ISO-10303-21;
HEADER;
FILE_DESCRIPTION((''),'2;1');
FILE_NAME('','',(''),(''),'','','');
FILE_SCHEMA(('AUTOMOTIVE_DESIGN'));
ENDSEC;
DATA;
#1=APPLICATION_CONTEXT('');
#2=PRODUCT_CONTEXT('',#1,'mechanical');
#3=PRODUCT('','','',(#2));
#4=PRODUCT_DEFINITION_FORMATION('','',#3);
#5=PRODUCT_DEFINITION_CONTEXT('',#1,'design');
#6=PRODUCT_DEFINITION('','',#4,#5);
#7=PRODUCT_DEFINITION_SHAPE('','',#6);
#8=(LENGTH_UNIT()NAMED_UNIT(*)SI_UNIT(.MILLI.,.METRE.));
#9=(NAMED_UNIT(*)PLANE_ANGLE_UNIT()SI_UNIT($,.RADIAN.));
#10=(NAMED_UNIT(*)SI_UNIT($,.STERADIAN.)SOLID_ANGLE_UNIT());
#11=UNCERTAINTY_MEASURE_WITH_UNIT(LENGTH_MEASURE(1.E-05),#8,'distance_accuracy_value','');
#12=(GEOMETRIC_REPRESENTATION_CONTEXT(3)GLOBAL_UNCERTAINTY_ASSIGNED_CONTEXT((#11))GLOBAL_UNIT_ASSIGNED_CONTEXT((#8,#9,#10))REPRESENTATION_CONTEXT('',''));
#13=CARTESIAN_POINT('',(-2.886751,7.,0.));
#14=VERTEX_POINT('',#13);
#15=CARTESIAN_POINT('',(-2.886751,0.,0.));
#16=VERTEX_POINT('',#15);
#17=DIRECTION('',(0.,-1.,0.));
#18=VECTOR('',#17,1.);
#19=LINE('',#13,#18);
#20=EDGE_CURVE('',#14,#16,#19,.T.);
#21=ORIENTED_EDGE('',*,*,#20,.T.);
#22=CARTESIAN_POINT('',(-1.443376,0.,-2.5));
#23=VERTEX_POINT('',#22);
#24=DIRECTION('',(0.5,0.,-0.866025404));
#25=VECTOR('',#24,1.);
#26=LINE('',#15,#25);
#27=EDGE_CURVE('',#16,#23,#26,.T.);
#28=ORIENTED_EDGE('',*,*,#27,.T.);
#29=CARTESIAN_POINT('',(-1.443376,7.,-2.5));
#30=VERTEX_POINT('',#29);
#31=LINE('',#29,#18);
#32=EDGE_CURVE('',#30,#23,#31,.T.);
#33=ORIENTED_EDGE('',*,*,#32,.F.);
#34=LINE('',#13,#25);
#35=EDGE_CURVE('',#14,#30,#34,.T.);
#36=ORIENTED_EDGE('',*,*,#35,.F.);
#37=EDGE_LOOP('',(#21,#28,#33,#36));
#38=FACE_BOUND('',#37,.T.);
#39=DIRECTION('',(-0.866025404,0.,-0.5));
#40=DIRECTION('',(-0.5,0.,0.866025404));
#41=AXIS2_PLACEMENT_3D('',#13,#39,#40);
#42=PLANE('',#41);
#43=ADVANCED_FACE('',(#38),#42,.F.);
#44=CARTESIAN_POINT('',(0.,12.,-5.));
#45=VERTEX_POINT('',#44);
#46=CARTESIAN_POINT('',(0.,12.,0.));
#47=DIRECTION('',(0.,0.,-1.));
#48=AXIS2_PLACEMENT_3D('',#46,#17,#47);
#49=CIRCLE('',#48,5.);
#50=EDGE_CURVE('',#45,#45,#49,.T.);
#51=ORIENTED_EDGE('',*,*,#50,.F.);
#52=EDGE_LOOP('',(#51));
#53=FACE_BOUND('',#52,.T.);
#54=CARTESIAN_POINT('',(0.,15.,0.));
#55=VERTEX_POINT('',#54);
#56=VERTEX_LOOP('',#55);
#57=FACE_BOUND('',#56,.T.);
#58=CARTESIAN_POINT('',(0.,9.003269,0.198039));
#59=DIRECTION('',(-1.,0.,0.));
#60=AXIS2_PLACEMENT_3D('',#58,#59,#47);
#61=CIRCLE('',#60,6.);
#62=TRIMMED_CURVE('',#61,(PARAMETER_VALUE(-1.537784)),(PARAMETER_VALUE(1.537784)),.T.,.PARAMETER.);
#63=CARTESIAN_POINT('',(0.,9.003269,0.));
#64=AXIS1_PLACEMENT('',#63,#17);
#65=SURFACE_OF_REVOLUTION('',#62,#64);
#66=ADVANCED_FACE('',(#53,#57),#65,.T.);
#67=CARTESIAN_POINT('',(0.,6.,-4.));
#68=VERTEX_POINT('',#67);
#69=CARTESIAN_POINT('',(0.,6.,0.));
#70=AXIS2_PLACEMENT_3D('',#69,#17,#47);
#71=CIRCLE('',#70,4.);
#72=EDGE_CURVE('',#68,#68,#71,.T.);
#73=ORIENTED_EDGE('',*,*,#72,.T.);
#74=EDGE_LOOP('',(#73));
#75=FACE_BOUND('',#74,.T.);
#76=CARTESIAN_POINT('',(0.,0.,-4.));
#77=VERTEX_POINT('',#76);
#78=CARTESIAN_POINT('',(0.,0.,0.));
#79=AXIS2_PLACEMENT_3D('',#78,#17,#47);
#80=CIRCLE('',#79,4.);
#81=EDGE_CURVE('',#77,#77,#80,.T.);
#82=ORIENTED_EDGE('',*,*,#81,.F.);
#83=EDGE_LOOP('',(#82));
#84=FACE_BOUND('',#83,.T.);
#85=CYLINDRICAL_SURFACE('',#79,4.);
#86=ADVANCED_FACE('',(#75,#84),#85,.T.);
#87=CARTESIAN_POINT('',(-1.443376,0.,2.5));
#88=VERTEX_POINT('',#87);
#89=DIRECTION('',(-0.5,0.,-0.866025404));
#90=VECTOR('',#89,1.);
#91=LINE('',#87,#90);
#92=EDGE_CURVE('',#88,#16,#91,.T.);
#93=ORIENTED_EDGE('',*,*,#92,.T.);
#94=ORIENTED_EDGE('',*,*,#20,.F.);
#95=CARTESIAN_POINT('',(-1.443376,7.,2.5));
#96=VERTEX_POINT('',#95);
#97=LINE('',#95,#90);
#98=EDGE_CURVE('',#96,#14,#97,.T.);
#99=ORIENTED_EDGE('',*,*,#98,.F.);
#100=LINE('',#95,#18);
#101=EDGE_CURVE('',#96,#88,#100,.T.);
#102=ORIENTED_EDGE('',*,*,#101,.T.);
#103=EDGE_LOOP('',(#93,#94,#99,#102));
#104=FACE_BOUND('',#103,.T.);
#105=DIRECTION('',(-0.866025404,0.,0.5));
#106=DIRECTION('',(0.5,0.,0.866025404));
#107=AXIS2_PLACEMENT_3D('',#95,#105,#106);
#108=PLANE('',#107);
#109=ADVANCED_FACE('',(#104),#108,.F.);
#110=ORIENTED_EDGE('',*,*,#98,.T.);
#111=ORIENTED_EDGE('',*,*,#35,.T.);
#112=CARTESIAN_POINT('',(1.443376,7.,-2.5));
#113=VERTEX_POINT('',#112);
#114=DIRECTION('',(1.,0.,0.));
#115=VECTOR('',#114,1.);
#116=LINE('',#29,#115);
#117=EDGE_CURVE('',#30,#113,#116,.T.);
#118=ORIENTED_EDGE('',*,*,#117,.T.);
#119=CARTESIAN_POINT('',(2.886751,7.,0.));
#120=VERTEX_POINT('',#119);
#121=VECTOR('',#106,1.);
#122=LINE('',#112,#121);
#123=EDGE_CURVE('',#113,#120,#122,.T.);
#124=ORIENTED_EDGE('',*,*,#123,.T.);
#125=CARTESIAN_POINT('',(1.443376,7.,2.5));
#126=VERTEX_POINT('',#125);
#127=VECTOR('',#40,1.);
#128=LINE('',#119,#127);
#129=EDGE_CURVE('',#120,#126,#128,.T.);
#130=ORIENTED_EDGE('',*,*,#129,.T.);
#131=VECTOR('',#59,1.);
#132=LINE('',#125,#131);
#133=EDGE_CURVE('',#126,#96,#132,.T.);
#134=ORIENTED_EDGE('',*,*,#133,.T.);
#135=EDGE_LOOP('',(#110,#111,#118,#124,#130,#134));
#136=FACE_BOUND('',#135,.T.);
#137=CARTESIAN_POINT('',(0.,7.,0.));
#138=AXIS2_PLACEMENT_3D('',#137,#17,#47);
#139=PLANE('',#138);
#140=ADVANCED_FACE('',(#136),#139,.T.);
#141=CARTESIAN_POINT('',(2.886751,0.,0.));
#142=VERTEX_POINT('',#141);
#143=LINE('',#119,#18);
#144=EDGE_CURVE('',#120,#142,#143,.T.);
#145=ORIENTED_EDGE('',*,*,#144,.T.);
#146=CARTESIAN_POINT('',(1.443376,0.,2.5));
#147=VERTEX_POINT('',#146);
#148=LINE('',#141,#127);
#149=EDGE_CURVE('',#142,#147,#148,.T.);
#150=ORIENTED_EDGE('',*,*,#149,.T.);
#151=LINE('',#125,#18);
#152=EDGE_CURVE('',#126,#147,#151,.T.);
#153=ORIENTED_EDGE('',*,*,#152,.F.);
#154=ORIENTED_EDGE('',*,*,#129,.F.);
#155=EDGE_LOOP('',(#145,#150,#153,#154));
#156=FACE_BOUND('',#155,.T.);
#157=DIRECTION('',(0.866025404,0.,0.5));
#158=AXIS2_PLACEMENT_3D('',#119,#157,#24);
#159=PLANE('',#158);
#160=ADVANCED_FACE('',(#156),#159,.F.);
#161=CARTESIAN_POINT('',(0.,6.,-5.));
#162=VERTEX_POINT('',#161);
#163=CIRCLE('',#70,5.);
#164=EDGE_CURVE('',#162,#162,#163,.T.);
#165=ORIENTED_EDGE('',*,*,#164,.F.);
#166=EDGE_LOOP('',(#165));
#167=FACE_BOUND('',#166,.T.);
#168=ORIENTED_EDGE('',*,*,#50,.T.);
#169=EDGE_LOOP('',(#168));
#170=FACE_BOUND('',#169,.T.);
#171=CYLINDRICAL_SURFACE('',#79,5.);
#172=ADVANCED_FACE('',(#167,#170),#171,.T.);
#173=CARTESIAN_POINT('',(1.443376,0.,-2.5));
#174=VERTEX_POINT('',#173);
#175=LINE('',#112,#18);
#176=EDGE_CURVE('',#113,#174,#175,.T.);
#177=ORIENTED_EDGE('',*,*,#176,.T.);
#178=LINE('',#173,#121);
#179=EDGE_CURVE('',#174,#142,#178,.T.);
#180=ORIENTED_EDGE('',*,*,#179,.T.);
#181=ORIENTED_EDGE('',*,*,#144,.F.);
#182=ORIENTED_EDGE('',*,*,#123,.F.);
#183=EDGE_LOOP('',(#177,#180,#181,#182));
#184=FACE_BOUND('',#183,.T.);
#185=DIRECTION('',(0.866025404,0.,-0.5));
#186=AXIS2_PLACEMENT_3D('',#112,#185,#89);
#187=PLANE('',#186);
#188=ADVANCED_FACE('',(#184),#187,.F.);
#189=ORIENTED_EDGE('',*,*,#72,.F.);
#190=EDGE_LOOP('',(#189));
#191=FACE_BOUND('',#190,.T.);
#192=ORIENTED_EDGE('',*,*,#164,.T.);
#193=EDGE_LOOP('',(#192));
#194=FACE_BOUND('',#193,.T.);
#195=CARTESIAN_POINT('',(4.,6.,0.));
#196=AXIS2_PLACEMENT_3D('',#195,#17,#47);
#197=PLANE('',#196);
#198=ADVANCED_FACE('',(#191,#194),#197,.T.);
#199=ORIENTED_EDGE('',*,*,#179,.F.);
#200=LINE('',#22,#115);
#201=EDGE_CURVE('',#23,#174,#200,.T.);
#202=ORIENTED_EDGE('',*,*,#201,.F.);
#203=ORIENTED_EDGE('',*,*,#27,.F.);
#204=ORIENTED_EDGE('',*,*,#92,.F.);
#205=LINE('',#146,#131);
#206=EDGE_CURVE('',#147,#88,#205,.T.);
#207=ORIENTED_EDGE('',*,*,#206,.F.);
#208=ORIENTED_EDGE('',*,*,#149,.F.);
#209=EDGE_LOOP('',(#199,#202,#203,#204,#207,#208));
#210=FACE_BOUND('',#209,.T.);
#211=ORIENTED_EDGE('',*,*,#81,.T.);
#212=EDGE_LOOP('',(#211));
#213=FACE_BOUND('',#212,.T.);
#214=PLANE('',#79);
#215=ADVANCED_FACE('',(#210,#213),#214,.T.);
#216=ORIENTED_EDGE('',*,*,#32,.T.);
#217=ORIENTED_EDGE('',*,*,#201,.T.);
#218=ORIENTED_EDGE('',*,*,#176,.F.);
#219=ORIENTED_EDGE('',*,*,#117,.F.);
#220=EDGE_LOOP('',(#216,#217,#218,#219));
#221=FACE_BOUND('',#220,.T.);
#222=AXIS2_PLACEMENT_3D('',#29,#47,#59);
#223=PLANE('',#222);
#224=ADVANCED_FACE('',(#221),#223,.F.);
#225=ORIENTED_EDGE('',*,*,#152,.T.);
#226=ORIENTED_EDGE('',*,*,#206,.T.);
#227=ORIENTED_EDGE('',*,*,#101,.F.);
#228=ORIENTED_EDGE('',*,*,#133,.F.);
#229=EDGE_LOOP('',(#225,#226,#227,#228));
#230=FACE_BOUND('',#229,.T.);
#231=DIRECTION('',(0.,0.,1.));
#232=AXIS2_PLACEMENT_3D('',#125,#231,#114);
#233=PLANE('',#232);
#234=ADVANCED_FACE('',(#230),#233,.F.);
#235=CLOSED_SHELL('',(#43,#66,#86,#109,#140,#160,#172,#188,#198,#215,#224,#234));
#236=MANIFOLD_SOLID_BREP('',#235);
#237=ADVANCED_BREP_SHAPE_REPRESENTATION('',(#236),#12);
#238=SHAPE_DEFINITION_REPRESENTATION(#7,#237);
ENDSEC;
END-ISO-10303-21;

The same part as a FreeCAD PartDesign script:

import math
import FreeCAD as App
import Part
import Sketcher
from FreeCAD import Vector
Q = App.Units.Quantity

doc = App.newDocument("Part")
body = doc.addObject("PartDesign::Body", "Body")

# Sketch on XY plane
sketch1 = body.newObject("Sketcher::SketchObject", "Sketch")
sketch1.AttachmentSupport = (doc.getObject("XY_Plane"), [""])
sketch1.MapMode = "FlatFace"
sketch1.addGeometry(Part.LineSegment(Vector(0, 15, 0), Vector(0, 0, 0)), False)
sketch1.addGeometry(Part.LineSegment(Vector(0, 0, 0), Vector(4, 0, 0)), False)
sketch1.addGeometry(Part.LineSegment(Vector(4, 0, 0), Vector(4, 6, 0)), False)
sketch1.addGeometry(Part.LineSegment(Vector(4, 6, 0), Vector(5, 6, 0)), False)
sketch1.addGeometry(Part.LineSegment(Vector(5, 6, 0), Vector(5, 12, 0)), False)
sketch1.addGeometry(Part.ArcOfCircle(Part.Circle(Vector(-0.2, 9, 0), Vector(0, 0, 1), 6), math.radians(30), math.radians(88)), False)
sketch1.addConstraint(Sketcher.Constraint("Coincident", 0, 2, 1, 1))
sketch1.addConstraint(Sketcher.Constraint("Coincident", 1, 2, 2, 1))
sketch1.addConstraint(Sketcher.Constraint("Coincident", 2, 2, 3, 1))
sketch1.addConstraint(Sketcher.Constraint("Coincident", 3, 2, 4, 1))
sketch1.addConstraint(Sketcher.Constraint("Coincident", 4, 2, 5, 1))
sketch1.addConstraint(Sketcher.Constraint("Coincident", 5, 2, 0, 1))
sketch1.addConstraint(Sketcher.Constraint("Vertical", 0))
sketch1.addConstraint(Sketcher.Constraint("Horizontal", 1))
sketch1.addConstraint(Sketcher.Constraint("Vertical", 2))
sketch1.addConstraint(Sketcher.Constraint("Horizontal", 3))
sketch1.addConstraint(Sketcher.Constraint("Vertical", 4))
sketch1.addConstraint(Sketcher.Constraint("Coincident", 0, 2, -1, 1))
sketch1.addConstraint(Sketcher.Constraint("Equal", 2, 4))
sketch1.addConstraint(Sketcher.Constraint("Radius", 5, 6.0))
sketch1.addConstraint(Sketcher.Constraint("DistanceX", 1, 1, 1, 2, 4.0))
sketch1.addConstraint(Sketcher.Constraint("DistanceX", 3, 1, 3, 2, 1.0))
sketch1.addConstraint(Sketcher.Constraint("DistanceY", 0, 2, 0, 1, 15.0))
sketch1.addConstraint(Sketcher.Constraint("DistanceY", 2, 1, 2, 2, 6.0))
revolution = body.newObject("PartDesign::Revolution", "Revolution")
revolution.Profile = sketch1
revolution.ReferenceAxis = (sketch1, ["V_Axis"])
revolution.Angle = 360

# Sketch on XZ plane
sketch2 = body.newObject("Sketcher::SketchObject", "Sketch001")
sketch2.AttachmentSupport = (doc.getObject("XZ_Plane"), [""])
sketch2.MapMode = "FlatFace"
sketch2.addGeometry(Part.LineSegment(Vector(2.9, 0, 0), Vector(1.4, 2.5, 0)), False)
sketch2.addGeometry(Part.LineSegment(Vector(1.4, 2.5, 0), Vector(-1.4, 2.5, 0)), False)
sketch2.addGeometry(Part.LineSegment(Vector(-1.4, 2.5, 0), Vector(-2.9, 0, 0)), False)
sketch2.addGeometry(Part.LineSegment(Vector(-2.9, 0, 0), Vector(-1.4, -2.5, 0)), False)
sketch2.addGeometry(Part.LineSegment(Vector(-1.4, -2.5, 0), Vector(1.4, -2.5, 0)), False)
sketch2.addGeometry(Part.LineSegment(Vector(1.4, -2.5, 0), Vector(2.9, 0, 0)), False)
sketch2.addConstraint(Sketcher.Constraint("Coincident", 0, 2, 1, 1))
sketch2.addConstraint(Sketcher.Constraint("Coincident", 1, 2, 2, 1))
sketch2.addConstraint(Sketcher.Constraint("Coincident", 2, 2, 3, 1))
sketch2.addConstraint(Sketcher.Constraint("Coincident", 3, 2, 4, 1))
sketch2.addConstraint(Sketcher.Constraint("Coincident", 4, 2, 5, 1))
sketch2.addConstraint(Sketcher.Constraint("Coincident", 5, 2, 0, 1))
sketch2.addConstraint(Sketcher.Constraint("Horizontal", 1))
sketch2.addConstraint(Sketcher.Constraint("Horizontal", 4))
sketch2.addConstraint(Sketcher.Constraint("Symmetric", 0, 2, 3, 2, -1, 1))
sketch2.addConstraint(Sketcher.Constraint("Symmetric", 2, 2, 5, 2, -1, 1))
sketch2.addConstraint(Sketcher.Constraint("PointOnObject", 2, 2, -1))
sketch2.addConstraint(Sketcher.Constraint("Parallel", 2, 5))
sketch2.addConstraint(Sketcher.Constraint("Vertical", 1, 2, 3, 2))
sketch2.addConstraint(Sketcher.Constraint("Angle", 0, Q("120 deg")))
sketch2.addConstraint(Sketcher.Constraint("DistanceY", 3, 2, 1, 2, 5.0))
sketch2.addConstraint(Sketcher.Constraint("DistanceX", 1, 2, 1, 1, 2.886751))
pocket1 = body.newObject("PartDesign::Pocket", "Pocket")
pocket1.Profile = sketch2
pocket1.Length = 7

doc.recompute()
